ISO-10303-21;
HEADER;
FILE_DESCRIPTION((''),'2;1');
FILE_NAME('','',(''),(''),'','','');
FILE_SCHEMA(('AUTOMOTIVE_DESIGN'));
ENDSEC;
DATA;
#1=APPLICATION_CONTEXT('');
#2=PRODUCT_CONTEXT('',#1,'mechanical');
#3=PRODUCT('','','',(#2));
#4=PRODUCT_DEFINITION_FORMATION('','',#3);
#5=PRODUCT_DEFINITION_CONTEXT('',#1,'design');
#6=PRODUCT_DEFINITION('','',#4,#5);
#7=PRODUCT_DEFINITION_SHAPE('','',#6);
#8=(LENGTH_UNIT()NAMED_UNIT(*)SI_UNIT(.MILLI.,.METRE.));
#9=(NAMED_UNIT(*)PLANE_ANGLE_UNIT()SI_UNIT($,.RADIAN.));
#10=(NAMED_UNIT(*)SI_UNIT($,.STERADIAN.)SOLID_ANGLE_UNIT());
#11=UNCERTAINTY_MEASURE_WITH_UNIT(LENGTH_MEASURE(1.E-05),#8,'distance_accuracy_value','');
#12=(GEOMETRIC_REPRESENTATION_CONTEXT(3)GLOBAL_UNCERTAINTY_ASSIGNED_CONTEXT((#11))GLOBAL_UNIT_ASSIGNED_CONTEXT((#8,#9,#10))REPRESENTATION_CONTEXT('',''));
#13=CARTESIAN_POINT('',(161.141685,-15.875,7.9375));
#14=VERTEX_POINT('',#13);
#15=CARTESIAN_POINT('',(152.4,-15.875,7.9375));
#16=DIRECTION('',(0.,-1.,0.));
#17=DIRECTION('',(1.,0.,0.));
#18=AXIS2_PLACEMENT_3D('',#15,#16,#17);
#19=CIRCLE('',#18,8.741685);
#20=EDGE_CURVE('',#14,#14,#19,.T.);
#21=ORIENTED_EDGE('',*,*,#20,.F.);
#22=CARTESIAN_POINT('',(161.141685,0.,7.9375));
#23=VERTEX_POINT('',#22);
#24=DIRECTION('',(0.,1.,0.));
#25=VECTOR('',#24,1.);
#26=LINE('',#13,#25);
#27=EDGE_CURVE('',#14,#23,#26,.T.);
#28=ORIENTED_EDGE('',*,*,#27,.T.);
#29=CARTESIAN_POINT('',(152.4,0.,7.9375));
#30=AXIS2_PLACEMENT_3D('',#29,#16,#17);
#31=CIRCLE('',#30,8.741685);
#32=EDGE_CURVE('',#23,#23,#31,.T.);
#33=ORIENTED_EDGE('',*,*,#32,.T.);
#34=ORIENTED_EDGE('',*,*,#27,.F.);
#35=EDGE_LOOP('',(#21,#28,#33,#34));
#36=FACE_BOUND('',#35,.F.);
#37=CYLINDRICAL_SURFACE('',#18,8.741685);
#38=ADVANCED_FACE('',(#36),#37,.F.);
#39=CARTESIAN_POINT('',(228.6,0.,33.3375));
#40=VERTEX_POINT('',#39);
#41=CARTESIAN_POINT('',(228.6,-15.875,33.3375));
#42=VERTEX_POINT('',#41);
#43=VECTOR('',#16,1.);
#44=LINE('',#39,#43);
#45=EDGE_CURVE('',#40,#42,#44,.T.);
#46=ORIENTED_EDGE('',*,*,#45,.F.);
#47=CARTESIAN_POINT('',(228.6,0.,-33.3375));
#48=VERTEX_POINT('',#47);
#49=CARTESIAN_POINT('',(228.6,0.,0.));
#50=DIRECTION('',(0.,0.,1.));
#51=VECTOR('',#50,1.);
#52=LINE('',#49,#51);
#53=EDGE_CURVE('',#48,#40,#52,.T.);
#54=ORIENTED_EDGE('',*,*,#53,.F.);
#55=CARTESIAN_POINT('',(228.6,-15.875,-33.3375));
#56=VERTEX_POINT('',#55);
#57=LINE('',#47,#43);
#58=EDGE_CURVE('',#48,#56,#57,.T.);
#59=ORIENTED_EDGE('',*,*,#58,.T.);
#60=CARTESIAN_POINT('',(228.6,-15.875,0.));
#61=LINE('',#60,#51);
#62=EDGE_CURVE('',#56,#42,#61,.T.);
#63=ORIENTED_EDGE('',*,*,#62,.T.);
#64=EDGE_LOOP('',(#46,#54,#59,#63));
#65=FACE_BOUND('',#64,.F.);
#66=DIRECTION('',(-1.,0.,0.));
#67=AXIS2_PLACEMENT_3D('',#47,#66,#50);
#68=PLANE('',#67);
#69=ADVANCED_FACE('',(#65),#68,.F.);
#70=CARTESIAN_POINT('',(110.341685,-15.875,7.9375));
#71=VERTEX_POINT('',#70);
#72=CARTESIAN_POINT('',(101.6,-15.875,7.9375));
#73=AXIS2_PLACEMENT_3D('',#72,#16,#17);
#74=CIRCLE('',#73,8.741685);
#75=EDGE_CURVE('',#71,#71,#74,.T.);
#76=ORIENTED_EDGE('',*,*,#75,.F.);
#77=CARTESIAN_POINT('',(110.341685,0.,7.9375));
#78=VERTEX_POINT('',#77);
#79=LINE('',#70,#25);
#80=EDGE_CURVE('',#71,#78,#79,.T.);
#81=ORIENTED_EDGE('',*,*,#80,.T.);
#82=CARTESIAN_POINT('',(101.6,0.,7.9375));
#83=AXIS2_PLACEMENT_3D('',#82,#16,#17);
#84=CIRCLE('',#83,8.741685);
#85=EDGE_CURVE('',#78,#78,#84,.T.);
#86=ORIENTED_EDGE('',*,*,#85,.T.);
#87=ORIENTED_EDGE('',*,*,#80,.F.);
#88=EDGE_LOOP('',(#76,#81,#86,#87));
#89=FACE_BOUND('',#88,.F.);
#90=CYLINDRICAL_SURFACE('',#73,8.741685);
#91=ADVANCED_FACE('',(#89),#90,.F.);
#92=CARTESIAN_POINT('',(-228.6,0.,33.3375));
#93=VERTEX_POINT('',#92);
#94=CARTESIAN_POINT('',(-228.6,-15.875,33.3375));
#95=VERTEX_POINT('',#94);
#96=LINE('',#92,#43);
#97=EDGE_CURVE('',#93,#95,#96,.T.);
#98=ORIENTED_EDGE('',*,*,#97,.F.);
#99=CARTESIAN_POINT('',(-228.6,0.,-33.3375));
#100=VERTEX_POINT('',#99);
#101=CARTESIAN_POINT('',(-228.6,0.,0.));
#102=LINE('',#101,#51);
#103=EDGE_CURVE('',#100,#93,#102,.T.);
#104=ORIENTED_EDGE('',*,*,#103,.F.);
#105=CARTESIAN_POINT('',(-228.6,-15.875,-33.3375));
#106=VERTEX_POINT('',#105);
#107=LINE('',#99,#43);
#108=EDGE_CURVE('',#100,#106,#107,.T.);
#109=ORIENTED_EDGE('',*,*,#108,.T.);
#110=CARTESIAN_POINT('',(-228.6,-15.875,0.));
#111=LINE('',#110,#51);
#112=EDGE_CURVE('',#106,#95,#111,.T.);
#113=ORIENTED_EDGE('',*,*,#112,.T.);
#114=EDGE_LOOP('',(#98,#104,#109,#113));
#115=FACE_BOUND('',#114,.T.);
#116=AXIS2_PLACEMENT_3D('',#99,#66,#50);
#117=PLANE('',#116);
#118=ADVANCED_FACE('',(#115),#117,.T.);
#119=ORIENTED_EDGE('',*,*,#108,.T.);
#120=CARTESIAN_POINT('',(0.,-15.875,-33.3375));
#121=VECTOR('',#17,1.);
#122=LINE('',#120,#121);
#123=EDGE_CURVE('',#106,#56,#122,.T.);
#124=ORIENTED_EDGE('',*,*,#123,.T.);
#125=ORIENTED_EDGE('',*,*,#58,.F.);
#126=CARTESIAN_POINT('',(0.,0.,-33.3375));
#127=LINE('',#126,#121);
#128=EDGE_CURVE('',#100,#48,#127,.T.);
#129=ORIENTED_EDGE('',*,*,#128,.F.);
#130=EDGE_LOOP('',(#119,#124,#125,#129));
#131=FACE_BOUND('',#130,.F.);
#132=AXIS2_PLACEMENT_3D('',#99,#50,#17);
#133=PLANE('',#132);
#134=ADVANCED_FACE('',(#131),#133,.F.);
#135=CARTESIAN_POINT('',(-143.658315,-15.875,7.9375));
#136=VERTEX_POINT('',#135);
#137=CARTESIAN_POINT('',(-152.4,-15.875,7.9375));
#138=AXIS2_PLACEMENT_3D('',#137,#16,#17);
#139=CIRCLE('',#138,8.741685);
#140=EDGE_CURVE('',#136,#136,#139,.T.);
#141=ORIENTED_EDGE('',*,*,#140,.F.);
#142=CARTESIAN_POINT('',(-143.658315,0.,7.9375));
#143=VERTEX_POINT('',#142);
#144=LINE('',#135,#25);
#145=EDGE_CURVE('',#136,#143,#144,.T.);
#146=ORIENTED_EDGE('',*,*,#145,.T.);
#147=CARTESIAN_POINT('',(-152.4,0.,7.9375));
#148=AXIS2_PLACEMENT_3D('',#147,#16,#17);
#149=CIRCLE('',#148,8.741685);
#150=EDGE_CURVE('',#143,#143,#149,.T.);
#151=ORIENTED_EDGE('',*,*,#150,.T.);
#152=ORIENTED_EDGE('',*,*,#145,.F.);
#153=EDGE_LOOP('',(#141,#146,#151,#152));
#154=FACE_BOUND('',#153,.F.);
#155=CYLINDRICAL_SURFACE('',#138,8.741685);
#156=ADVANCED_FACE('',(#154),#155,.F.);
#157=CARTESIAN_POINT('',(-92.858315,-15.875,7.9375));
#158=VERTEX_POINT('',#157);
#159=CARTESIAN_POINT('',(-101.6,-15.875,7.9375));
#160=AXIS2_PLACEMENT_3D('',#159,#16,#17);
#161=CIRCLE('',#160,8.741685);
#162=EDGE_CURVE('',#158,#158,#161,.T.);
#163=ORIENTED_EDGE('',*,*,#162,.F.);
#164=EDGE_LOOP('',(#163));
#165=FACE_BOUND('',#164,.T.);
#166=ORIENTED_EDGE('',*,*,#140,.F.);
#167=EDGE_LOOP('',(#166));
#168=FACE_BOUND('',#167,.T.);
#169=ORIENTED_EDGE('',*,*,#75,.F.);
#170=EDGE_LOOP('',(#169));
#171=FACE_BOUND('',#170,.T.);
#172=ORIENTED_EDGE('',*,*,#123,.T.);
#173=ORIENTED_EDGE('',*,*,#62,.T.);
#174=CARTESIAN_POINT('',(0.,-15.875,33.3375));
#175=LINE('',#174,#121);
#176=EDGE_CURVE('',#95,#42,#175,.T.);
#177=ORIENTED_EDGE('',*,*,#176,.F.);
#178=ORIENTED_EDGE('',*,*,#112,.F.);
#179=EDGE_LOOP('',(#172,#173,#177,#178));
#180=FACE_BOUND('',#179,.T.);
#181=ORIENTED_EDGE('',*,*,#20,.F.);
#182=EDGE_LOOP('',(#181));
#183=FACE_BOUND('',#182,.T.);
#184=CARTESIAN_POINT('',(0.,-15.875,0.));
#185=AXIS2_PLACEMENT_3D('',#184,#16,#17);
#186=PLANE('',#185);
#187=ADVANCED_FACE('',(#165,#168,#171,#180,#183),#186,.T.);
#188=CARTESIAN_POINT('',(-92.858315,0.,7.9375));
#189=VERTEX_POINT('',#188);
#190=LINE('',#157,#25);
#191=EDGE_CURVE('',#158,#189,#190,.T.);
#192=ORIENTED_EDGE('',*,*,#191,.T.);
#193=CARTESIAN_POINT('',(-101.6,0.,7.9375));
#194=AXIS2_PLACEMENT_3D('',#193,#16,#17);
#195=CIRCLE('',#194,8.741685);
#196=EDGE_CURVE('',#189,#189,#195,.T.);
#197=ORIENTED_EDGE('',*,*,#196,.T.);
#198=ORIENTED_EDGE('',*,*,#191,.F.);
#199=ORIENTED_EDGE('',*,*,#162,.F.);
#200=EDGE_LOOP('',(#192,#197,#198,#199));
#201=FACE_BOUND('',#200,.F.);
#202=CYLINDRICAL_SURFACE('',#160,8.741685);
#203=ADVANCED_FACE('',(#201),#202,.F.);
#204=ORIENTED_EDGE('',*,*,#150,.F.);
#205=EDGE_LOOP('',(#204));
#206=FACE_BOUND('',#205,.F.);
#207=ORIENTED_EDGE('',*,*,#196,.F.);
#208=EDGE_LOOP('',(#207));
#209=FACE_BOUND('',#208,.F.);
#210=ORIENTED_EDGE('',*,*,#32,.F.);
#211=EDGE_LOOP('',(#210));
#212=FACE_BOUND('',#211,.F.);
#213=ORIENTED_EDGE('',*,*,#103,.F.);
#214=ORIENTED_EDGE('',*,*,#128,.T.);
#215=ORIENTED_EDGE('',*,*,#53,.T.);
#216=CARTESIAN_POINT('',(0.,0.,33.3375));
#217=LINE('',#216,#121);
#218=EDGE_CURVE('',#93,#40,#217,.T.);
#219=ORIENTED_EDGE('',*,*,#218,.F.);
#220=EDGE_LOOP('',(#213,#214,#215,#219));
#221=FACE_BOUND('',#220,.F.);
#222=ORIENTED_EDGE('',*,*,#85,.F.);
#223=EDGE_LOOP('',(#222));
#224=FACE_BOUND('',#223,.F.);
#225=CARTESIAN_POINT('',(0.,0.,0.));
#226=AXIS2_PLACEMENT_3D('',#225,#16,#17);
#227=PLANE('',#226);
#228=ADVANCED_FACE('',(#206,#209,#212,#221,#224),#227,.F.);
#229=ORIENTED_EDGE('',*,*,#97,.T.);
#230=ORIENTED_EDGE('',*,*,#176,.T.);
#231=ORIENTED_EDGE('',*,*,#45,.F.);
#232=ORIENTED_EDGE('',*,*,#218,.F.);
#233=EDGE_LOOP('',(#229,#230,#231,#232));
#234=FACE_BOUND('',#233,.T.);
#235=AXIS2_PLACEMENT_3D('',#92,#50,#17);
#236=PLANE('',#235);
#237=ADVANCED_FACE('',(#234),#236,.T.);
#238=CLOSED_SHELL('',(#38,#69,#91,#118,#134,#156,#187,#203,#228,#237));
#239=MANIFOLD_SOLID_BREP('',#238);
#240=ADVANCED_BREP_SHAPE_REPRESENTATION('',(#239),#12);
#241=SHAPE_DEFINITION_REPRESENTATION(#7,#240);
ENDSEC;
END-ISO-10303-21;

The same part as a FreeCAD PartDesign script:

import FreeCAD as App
import Part
import Sketcher
from FreeCAD import Vector
Q = App.Units.Quantity


def add_polygon(sketch, points):
    """Adds a closed chain of lines whose ends are joined by coincident constraints."""
    first, n = sketch.GeometryCount, len(points)
    for a, b in zip(points, points[1:] + points[:1]):
        sketch.addGeometry(Part.LineSegment(App.Vector(*a, 0), App.Vector(*b, 0)), False)
    for i in range(n):
        sketch.addConstraint(Sketcher.Constraint("Coincident", first + i, 2, first + (i + 1) % n, 1))

doc = App.newDocument("Part")
params = doc.addObject("Spreadsheet::Sheet", "Params")
for row, (alias, value) in enumerate([
    ("sketch1_width", "18 in"),
    ("sketch1_height", "2.625 in"),
    ("pad1_length", "0.625 in"),
], start=1):
    params.set(f"A{row}", alias)
    params.set(f"B{row}", "=" + value)
    params.setAlias(f"B{row}", alias)

body = doc.addObject("PartDesign::Body", "Body")

sketch1 = doc.addObject("Sketcher::SketchObject", "Sketch")
body.addObject(sketch1)
sketch1.AttachmentSupport = (doc.XZ_Plane, [""])
sketch1.MapMode = "FlatFace"
add_polygon(sketch1, [(-229, 33), (-229, -33), (229, -33), (229, 33)])
sketch1.addConstraint(Sketcher.Constraint("Vertical", 0))
sketch1.addConstraint(Sketcher.Constraint("Horizontal", 1))
sketch1.addConstraint(Sketcher.Constraint("Vertical", 2))
sketch1.addConstraint(Sketcher.Constraint("Horizontal", 3))
sketch1.addConstraint(Sketcher.Constraint("Symmetric", 0, 2, 2, 2, -1, 1))
sketch1.addConstraint(Sketcher.Constraint("DistanceX", 1, 1, 1, 2, Q("18 in")))
sketch1.addConstraint(Sketcher.Constraint("DistanceY", 0, 2, 0, 1, Q("2.625 in")))
sketch1.setExpression("Constraints[9]", "Params.sketch1_width")
sketch1.setExpression("Constraints[10]", "Params.sketch1_height")
pad1 = doc.addObject("PartDesign::Pad", "Pad")
body.addObject(pad1)
pad1.Profile = sketch1
pad1.setExpression("Length", "Params.pad1_length")

sketch2 = doc.addObject("Sketcher::SketchObject", "Sketch001")
body.addObject(sketch2)
sketch2.AttachmentSupport = (doc.XZ_Plane, [""])
sketch2.MapMode = "FlatFace"
sketch2.AttachmentOffset = App.Placement(Vector(0, 0, 0.625 * 25.4), App.Rotation())
sketch2.addGeometry(Part.Circle(Vector(-152, 8, 0), Vector(0, 0, 1), 9), False)
sketch2.addGeometry(Part.Circle(Vector(-102, 8, 0), Vector(0, 0, 1), 9), False)
sketch2.addGeometry(Part.Circle(Vector(102, 8, 0), Vector(0, 0, 1), 9), False)
sketch2.addGeometry(Part.Circle(Vector(152, 8, 0), Vector(0, 0, 1), 9), False)
sketch2.addConstraint(Sketcher.Constraint("Equal", 0, 1))
sketch2.addConstraint(Sketcher.Constraint("Equal", 1, 2))
sketch2.addConstraint(Sketcher.Constraint("Equal", 2, 3))
sketch2.addConstraint(Sketcher.Constraint("Symmetric", 1, 3, 2, 3, -2))
sketch2.addConstraint(Sketcher.Constraint("Symmetric", 0, 3, 3, 3, -2))
sketch2.addConstraint(Sketcher.Constraint("Horizontal", 0, 3, 1, 3))
sketch2.addConstraint(Sketcher.Constraint("DistanceX", 0, 3, -1, 1, Q("6 in")))
sketch2.addConstraint(Sketcher.Constraint("DistanceX", 1, 3, -1, 1, Q("4 in")))
sketch2.addConstraint(Sketcher.Constraint("Diameter", 0, 17.48337))
sketch2.addConstraint(Sketcher.Constraint("DistanceY", -1, 1, 0, 3, Q("0.3125 in")))
pocket1 = doc.addObject("PartDesign::Pocket", "Pocket")
body.addObject(pocket1)
pocket1.Profile = sketch2
pocket1.Type = "ThroughAll"

doc.recompute()
